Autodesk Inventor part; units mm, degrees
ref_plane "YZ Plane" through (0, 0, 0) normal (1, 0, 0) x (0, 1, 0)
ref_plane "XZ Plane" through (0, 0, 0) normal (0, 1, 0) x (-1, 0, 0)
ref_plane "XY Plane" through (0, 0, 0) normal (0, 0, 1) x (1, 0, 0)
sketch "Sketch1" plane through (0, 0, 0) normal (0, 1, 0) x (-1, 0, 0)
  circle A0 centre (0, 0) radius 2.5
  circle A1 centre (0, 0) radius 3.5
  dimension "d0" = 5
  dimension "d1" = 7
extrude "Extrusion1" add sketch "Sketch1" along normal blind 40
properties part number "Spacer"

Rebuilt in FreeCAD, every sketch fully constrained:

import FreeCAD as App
import Part
import Sketcher
from FreeCAD import Vector
Q = App.Units.Quantity

doc = App.newDocument("Part")
body = doc.addObject("PartDesign::Body", "Body")

sketch1 = body.newObject("Sketcher::SketchObject", "Sketch")
sketch1.AttachmentSupport = (doc.getObject("XZ_Plane"), [""])
sketch1.MapMode = "FlatFace"
sketch1.addGeometry([
    Part.Circle(Vector(0, 0, 0), Vector(0, 0, 1), 3.5),
    Part.Circle(Vector(0, 0, 0), Vector(0, 0, 1), 2.5),
], False)
sketch1.addConstraint([
    Sketcher.Constraint("Coincident", 0, 3, -1, 1),
    Sketcher.Constraint("Coincident", 1, 3, -1, 1),
    Sketcher.Constraint("Diameter", 0, Q("7 mm")),
    Sketcher.Constraint("Diameter", 1, Q("5 mm")),
])
pad1 = body.newObject("PartDesign::Pad", "Pad")
pad1.Profile = sketch1
pad1.Length = 40
pad1.Reversed = True

doc.recompute()
